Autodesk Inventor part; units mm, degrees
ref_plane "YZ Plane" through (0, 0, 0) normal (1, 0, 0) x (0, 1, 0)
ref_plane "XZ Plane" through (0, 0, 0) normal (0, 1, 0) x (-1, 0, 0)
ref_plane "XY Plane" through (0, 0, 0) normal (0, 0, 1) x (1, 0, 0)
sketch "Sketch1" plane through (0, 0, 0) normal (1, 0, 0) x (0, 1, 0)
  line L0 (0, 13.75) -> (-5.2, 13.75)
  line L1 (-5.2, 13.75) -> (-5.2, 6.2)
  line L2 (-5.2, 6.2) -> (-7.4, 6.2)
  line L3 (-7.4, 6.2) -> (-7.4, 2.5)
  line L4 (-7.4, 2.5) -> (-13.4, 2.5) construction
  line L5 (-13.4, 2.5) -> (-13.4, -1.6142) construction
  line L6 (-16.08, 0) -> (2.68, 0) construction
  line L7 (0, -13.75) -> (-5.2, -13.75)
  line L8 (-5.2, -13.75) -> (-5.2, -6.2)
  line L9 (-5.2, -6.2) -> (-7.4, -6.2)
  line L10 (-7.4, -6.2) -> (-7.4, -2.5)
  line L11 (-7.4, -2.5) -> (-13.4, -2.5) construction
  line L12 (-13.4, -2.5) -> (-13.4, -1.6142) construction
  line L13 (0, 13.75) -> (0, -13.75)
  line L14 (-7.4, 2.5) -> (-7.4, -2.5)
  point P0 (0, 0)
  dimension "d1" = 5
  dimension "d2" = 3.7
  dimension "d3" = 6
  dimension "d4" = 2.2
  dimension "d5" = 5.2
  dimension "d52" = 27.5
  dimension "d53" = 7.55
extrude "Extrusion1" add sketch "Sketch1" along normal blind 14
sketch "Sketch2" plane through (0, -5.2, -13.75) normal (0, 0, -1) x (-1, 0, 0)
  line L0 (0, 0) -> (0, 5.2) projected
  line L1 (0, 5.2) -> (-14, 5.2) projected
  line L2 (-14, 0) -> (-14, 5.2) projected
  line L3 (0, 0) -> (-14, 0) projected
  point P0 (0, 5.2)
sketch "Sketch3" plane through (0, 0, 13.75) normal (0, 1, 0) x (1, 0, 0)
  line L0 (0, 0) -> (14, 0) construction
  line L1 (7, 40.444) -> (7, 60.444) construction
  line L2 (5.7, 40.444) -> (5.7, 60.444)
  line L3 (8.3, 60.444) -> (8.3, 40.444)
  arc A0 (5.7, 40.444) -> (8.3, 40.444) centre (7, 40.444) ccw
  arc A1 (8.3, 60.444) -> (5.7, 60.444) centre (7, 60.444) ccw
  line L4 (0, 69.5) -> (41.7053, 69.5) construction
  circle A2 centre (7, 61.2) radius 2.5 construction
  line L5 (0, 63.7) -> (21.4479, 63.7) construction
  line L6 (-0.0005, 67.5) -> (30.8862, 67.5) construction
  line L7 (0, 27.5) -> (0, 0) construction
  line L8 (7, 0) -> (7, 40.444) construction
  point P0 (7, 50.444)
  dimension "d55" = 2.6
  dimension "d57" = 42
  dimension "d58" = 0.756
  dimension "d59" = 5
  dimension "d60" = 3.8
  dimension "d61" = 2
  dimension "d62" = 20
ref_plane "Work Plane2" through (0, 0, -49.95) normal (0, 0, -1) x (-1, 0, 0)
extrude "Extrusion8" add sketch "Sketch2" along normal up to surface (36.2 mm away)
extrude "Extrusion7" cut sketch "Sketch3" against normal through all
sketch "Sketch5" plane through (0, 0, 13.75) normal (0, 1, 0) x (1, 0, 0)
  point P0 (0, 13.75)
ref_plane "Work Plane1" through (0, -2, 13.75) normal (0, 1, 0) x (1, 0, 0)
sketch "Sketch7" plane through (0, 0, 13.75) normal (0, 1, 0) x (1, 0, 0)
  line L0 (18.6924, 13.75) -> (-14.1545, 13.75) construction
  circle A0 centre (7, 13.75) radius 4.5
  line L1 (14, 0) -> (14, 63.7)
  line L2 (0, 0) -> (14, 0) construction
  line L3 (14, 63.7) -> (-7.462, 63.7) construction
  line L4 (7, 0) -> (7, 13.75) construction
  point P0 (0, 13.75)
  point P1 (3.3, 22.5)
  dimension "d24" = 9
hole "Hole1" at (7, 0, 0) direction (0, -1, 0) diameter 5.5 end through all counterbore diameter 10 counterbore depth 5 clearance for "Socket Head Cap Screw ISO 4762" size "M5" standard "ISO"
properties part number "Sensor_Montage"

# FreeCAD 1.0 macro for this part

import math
import FreeCAD as App
import Part
import Sketcher
Q = App.Units.Quantity

doc = App.newDocument("Part")
body = doc.addObject("PartDesign::Body", "Body")

# Sketch on YZ plane
sketch1 = body.newObject("Sketcher::SketchObject", "Sketch")
sketch1.AttachmentSupport = (doc.getObject("YZ_Plane"), [""])
sketch1.MapMode = "FlatFace"
sketch1.addGeometry(Part.LineSegment(App.Vector(0, -13.8, 0), App.Vector(0, 13.8, 0)), False)
sketch1.addGeometry(Part.LineSegment(App.Vector(0, 13.8, 0), App.Vector(-5.2, 13.8, 0)), False)
sketch1.addGeometry(Part.LineSegment(App.Vector(-5.2, 13.8, 0), App.Vector(-5.2, 6.2, 0)), False)
sketch1.addGeometry(Part.LineSegment(App.Vector(-5.2, 6.2, 0), App.Vector(-7.4, 6.2, 0)), False)
sketch1.addGeometry(Part.LineSegment(App.Vector(-7.4, 6.2, 0), App.Vector(-7.4, -6.2, 0)), False)
sketch1.addGeometry(Part.LineSegment(App.Vector(-7.4, -6.2, 0), App.Vector(-5.2, -6.2, 0)), False)
sketch1.addGeometry(Part.LineSegment(App.Vector(-5.2, -6.2, 0), App.Vector(-5.2, -13.8, 0)), False)
sketch1.addGeometry(Part.LineSegment(App.Vector(-5.2, -13.8, 0), App.Vector(0, -13.8, 0)), False)
sketch1.addConstraint(Sketcher.Constraint("Coincident", 0, 2, 1, 1))
sketch1.addConstraint(Sketcher.Constraint("Coincident", 1, 2, 2, 1))
sketch1.addConstraint(Sketcher.Constraint("Coincident", 2, 2, 3, 1))
sketch1.addConstraint(Sketcher.Constraint("Coincident", 3, 2, 4, 1))
sketch1.addConstraint(Sketcher.Constraint("Coincident", 4, 2, 5, 1))
sketch1.addConstraint(Sketcher.Constraint("Coincident", 5, 2, 6, 1))
sketch1.addConstraint(Sketcher.Constraint("Coincident", 6, 2, 7, 1))
sketch1.addConstraint(Sketcher.Constraint("Coincident", 7, 2, 0, 1))
sketch1.addConstraint(Sketcher.Constraint("Vertical", 0))
sketch1.addConstraint(Sketcher.Constraint("Horizontal", 1))
sketch1.addConstraint(Sketcher.Constraint("Vertical", 2))
sketch1.addConstraint(Sketcher.Constraint("Horizontal", 3))
sketch1.addConstraint(Sketcher.Constraint("Vertical", 4))
sketch1.addConstraint(Sketcher.Constraint("Horizontal", 5))
sketch1.addConstraint(Sketcher.Constraint("Vertical", 6))
sketch1.addConstraint(Sketcher.Constraint("Horizontal", 7))
sketch1.addConstraint(Sketcher.Constraint("Symmetric", 0, 2, 7, 2, -1, 1))
sketch1.addConstraint(Sketcher.Constraint("Symmetric", 2, 2, 5, 2, -1))
sketch1.addConstraint(Sketcher.Constraint("DistanceX", 1, 2, 1, 1, Q("5.2 mm")))
sketch1.addConstraint(Sketcher.Constraint("DistanceX", 3, 2, 3, 1, Q("2.2 mm")))
sketch1.addConstraint(Sketcher.Constraint("DistanceY", 0, 1, 0, 2, Q("27.5 mm")))
sketch1.addConstraint(Sketcher.Constraint("DistanceY", 2, 2, 2, 1, Q("7.55 mm")))
pad1 = body.newObject("PartDesign::Pad", "Pad")
pad1.Profile = sketch1
pad1.Length = 14

# Sketch on XY plane
sketch2 = body.newObject("Sketcher::SketchObject", "Sketch001")
sketch2.AttachmentSupport = (doc.getObject("XY_Plane"), [""])
sketch2.MapMode = "FlatFace"
sketch2.AttachmentOffset = App.Placement(App.Vector(0, 0, -13.75), App.Rotation())
sketch2.addGeometry(Part.LineSegment(App.Vector(14, -5, 0), App.Vector(0, -5, 0)), False)
sketch2.addGeometry(Part.LineSegment(App.Vector(0, -5, 0), App.Vector(0, 0, 0)), False)
sketch2.addGeometry(Part.LineSegment(App.Vector(0, 0, 0), App.Vector(14, 0, 0)), False)
sketch2.addGeometry(Part.LineSegment(App.Vector(14, 0, 0), App.Vector(14, -5, 0)), False)
sketch2.addConstraint(Sketcher.Constraint("Coincident", 0, 2, 1, 1))
sketch2.addConstraint(Sketcher.Constraint("Coincident", 1, 2, 2, 1))
sketch2.addConstraint(Sketcher.Constraint("Coincident", 2, 2, 3, 1))
sketch2.addConstraint(Sketcher.Constraint("Coincident", 3, 2, 0, 1))
sketch2.addConstraint(Sketcher.Constraint("Horizontal", 0))
sketch2.addConstraint(Sketcher.Constraint("Vertical", 1))
sketch2.addConstraint(Sketcher.Constraint("Horizontal", 2))
sketch2.addConstraint(Sketcher.Constraint("Vertical", 3))
sketch2.addConstraint(Sketcher.Constraint("Coincident", 1, 2, -1, 1))
sketch2.addConstraint(Sketcher.Constraint("DistanceX", 0, 2, 0, 1, Q("14 mm")))
sketch2.addConstraint(Sketcher.Constraint("DistanceY", 1, 1, 1, 2, Q("5.2 mm")))
pad2 = body.newObject("PartDesign::Pad", "Pad001")
pad2.Profile = sketch2
pad2.Length = 36.2
pad2.Reversed = True

# Sketch on XZ plane
sketch3 = body.newObject("Sketcher::SketchObject", "Sketch002")
sketch3.AttachmentSupport = (doc.getObject("XZ_Plane"), [""])
sketch3.MapMode = "FlatFace"
sketch3.addGeometry(Part.LineSegment(App.Vector(5.7, -46.7, 0), App.Vector(5.7, -26.7, 0)), False)
sketch3.addGeometry(Part.ArcOfCircle(Part.Circle(App.Vector(7, -26.7, 0), App.Vector(0, 0, 1), 1.3), math.radians(0), math.radians(180)), False)
sketch3.addGeometry(Part.LineSegment(App.Vector(8.3, -26.7, 0), App.Vector(8.3, -46.7, 0)), False)
sketch3.addGeometry(Part.ArcOfCircle(Part.Circle(App.Vector(7, -46.7, 0), App.Vector(0, 0, 1), 1.3), math.radians(180), math.radians(360)), False)
sketch3.addConstraint(Sketcher.Constraint("Tangent", 0, 2, 1, 2))
sketch3.addConstraint(Sketcher.Constraint("Tangent", 1, 1, 2, 1))
sketch3.addConstraint(Sketcher.Constraint("Tangent", 2, 2, 3, 2))
sketch3.addConstraint(Sketcher.Constraint("Tangent", 3, 1, 0, 1))
sketch3.addConstraint(Sketcher.Constraint("Vertical", 0))
sketch3.addConstraint(Sketcher.Constraint("Vertical", 2))
sketch3.addConstraint(Sketcher.Constraint("Radius", 1, Q("1.3 mm")))
sketch3.addConstraint(Sketcher.Constraint("DistanceY", 0, 1, 0, 2, Q("20 mm")))
sketch3.addConstraint(Sketcher.Constraint("DistanceX", -1, 1, 1, 3, Q("7 mm")))
sketch3.addConstraint(Sketcher.Constraint("DistanceY", 1, 3, -1, 1, Q("26.694 mm")))
pocket1 = body.newObject("PartDesign::Pocket", "Pocket")
pocket1.Profile = sketch3
pocket1.Type = "ThroughAll"
pocket1.Reversed = True

# Sketch on XZ plane
sketch4 = body.newObject("Sketcher::SketchObject", "Sketch003")
sketch4.AttachmentSupport = (doc.getObject("XZ_Plane"), [""])
sketch4.MapMode = "FlatFace"
sketch4.addGeometry(Part.Circle(App.Vector(7, 0, 0), App.Vector(0, 0, 1), 2.8), False)
sketch4.addConstraint(Sketcher.Constraint("PointOnObject", 0, 3, -1))
sketch4.addConstraint(Sketcher.Constraint("Diameter", 0, Q("5.5 mm")))
sketch4.addConstraint(Sketcher.Constraint("DistanceX", -1, 1, 0, 3, Q("7 mm")))
doc.recompute()
hole = body.newObject("PartDesign::Hole", "Hole")
hole.Profile = sketch4
hole.ThreadType = "None"
hole.Diameter = 5.5
hole.DepthType = "ThroughAll"
hole.HoleCutType = "Counterbore"
hole.HoleCutDiameter = 10
hole.HoleCutDepth = 5
hole.Reversed = True

doc.recompute()
